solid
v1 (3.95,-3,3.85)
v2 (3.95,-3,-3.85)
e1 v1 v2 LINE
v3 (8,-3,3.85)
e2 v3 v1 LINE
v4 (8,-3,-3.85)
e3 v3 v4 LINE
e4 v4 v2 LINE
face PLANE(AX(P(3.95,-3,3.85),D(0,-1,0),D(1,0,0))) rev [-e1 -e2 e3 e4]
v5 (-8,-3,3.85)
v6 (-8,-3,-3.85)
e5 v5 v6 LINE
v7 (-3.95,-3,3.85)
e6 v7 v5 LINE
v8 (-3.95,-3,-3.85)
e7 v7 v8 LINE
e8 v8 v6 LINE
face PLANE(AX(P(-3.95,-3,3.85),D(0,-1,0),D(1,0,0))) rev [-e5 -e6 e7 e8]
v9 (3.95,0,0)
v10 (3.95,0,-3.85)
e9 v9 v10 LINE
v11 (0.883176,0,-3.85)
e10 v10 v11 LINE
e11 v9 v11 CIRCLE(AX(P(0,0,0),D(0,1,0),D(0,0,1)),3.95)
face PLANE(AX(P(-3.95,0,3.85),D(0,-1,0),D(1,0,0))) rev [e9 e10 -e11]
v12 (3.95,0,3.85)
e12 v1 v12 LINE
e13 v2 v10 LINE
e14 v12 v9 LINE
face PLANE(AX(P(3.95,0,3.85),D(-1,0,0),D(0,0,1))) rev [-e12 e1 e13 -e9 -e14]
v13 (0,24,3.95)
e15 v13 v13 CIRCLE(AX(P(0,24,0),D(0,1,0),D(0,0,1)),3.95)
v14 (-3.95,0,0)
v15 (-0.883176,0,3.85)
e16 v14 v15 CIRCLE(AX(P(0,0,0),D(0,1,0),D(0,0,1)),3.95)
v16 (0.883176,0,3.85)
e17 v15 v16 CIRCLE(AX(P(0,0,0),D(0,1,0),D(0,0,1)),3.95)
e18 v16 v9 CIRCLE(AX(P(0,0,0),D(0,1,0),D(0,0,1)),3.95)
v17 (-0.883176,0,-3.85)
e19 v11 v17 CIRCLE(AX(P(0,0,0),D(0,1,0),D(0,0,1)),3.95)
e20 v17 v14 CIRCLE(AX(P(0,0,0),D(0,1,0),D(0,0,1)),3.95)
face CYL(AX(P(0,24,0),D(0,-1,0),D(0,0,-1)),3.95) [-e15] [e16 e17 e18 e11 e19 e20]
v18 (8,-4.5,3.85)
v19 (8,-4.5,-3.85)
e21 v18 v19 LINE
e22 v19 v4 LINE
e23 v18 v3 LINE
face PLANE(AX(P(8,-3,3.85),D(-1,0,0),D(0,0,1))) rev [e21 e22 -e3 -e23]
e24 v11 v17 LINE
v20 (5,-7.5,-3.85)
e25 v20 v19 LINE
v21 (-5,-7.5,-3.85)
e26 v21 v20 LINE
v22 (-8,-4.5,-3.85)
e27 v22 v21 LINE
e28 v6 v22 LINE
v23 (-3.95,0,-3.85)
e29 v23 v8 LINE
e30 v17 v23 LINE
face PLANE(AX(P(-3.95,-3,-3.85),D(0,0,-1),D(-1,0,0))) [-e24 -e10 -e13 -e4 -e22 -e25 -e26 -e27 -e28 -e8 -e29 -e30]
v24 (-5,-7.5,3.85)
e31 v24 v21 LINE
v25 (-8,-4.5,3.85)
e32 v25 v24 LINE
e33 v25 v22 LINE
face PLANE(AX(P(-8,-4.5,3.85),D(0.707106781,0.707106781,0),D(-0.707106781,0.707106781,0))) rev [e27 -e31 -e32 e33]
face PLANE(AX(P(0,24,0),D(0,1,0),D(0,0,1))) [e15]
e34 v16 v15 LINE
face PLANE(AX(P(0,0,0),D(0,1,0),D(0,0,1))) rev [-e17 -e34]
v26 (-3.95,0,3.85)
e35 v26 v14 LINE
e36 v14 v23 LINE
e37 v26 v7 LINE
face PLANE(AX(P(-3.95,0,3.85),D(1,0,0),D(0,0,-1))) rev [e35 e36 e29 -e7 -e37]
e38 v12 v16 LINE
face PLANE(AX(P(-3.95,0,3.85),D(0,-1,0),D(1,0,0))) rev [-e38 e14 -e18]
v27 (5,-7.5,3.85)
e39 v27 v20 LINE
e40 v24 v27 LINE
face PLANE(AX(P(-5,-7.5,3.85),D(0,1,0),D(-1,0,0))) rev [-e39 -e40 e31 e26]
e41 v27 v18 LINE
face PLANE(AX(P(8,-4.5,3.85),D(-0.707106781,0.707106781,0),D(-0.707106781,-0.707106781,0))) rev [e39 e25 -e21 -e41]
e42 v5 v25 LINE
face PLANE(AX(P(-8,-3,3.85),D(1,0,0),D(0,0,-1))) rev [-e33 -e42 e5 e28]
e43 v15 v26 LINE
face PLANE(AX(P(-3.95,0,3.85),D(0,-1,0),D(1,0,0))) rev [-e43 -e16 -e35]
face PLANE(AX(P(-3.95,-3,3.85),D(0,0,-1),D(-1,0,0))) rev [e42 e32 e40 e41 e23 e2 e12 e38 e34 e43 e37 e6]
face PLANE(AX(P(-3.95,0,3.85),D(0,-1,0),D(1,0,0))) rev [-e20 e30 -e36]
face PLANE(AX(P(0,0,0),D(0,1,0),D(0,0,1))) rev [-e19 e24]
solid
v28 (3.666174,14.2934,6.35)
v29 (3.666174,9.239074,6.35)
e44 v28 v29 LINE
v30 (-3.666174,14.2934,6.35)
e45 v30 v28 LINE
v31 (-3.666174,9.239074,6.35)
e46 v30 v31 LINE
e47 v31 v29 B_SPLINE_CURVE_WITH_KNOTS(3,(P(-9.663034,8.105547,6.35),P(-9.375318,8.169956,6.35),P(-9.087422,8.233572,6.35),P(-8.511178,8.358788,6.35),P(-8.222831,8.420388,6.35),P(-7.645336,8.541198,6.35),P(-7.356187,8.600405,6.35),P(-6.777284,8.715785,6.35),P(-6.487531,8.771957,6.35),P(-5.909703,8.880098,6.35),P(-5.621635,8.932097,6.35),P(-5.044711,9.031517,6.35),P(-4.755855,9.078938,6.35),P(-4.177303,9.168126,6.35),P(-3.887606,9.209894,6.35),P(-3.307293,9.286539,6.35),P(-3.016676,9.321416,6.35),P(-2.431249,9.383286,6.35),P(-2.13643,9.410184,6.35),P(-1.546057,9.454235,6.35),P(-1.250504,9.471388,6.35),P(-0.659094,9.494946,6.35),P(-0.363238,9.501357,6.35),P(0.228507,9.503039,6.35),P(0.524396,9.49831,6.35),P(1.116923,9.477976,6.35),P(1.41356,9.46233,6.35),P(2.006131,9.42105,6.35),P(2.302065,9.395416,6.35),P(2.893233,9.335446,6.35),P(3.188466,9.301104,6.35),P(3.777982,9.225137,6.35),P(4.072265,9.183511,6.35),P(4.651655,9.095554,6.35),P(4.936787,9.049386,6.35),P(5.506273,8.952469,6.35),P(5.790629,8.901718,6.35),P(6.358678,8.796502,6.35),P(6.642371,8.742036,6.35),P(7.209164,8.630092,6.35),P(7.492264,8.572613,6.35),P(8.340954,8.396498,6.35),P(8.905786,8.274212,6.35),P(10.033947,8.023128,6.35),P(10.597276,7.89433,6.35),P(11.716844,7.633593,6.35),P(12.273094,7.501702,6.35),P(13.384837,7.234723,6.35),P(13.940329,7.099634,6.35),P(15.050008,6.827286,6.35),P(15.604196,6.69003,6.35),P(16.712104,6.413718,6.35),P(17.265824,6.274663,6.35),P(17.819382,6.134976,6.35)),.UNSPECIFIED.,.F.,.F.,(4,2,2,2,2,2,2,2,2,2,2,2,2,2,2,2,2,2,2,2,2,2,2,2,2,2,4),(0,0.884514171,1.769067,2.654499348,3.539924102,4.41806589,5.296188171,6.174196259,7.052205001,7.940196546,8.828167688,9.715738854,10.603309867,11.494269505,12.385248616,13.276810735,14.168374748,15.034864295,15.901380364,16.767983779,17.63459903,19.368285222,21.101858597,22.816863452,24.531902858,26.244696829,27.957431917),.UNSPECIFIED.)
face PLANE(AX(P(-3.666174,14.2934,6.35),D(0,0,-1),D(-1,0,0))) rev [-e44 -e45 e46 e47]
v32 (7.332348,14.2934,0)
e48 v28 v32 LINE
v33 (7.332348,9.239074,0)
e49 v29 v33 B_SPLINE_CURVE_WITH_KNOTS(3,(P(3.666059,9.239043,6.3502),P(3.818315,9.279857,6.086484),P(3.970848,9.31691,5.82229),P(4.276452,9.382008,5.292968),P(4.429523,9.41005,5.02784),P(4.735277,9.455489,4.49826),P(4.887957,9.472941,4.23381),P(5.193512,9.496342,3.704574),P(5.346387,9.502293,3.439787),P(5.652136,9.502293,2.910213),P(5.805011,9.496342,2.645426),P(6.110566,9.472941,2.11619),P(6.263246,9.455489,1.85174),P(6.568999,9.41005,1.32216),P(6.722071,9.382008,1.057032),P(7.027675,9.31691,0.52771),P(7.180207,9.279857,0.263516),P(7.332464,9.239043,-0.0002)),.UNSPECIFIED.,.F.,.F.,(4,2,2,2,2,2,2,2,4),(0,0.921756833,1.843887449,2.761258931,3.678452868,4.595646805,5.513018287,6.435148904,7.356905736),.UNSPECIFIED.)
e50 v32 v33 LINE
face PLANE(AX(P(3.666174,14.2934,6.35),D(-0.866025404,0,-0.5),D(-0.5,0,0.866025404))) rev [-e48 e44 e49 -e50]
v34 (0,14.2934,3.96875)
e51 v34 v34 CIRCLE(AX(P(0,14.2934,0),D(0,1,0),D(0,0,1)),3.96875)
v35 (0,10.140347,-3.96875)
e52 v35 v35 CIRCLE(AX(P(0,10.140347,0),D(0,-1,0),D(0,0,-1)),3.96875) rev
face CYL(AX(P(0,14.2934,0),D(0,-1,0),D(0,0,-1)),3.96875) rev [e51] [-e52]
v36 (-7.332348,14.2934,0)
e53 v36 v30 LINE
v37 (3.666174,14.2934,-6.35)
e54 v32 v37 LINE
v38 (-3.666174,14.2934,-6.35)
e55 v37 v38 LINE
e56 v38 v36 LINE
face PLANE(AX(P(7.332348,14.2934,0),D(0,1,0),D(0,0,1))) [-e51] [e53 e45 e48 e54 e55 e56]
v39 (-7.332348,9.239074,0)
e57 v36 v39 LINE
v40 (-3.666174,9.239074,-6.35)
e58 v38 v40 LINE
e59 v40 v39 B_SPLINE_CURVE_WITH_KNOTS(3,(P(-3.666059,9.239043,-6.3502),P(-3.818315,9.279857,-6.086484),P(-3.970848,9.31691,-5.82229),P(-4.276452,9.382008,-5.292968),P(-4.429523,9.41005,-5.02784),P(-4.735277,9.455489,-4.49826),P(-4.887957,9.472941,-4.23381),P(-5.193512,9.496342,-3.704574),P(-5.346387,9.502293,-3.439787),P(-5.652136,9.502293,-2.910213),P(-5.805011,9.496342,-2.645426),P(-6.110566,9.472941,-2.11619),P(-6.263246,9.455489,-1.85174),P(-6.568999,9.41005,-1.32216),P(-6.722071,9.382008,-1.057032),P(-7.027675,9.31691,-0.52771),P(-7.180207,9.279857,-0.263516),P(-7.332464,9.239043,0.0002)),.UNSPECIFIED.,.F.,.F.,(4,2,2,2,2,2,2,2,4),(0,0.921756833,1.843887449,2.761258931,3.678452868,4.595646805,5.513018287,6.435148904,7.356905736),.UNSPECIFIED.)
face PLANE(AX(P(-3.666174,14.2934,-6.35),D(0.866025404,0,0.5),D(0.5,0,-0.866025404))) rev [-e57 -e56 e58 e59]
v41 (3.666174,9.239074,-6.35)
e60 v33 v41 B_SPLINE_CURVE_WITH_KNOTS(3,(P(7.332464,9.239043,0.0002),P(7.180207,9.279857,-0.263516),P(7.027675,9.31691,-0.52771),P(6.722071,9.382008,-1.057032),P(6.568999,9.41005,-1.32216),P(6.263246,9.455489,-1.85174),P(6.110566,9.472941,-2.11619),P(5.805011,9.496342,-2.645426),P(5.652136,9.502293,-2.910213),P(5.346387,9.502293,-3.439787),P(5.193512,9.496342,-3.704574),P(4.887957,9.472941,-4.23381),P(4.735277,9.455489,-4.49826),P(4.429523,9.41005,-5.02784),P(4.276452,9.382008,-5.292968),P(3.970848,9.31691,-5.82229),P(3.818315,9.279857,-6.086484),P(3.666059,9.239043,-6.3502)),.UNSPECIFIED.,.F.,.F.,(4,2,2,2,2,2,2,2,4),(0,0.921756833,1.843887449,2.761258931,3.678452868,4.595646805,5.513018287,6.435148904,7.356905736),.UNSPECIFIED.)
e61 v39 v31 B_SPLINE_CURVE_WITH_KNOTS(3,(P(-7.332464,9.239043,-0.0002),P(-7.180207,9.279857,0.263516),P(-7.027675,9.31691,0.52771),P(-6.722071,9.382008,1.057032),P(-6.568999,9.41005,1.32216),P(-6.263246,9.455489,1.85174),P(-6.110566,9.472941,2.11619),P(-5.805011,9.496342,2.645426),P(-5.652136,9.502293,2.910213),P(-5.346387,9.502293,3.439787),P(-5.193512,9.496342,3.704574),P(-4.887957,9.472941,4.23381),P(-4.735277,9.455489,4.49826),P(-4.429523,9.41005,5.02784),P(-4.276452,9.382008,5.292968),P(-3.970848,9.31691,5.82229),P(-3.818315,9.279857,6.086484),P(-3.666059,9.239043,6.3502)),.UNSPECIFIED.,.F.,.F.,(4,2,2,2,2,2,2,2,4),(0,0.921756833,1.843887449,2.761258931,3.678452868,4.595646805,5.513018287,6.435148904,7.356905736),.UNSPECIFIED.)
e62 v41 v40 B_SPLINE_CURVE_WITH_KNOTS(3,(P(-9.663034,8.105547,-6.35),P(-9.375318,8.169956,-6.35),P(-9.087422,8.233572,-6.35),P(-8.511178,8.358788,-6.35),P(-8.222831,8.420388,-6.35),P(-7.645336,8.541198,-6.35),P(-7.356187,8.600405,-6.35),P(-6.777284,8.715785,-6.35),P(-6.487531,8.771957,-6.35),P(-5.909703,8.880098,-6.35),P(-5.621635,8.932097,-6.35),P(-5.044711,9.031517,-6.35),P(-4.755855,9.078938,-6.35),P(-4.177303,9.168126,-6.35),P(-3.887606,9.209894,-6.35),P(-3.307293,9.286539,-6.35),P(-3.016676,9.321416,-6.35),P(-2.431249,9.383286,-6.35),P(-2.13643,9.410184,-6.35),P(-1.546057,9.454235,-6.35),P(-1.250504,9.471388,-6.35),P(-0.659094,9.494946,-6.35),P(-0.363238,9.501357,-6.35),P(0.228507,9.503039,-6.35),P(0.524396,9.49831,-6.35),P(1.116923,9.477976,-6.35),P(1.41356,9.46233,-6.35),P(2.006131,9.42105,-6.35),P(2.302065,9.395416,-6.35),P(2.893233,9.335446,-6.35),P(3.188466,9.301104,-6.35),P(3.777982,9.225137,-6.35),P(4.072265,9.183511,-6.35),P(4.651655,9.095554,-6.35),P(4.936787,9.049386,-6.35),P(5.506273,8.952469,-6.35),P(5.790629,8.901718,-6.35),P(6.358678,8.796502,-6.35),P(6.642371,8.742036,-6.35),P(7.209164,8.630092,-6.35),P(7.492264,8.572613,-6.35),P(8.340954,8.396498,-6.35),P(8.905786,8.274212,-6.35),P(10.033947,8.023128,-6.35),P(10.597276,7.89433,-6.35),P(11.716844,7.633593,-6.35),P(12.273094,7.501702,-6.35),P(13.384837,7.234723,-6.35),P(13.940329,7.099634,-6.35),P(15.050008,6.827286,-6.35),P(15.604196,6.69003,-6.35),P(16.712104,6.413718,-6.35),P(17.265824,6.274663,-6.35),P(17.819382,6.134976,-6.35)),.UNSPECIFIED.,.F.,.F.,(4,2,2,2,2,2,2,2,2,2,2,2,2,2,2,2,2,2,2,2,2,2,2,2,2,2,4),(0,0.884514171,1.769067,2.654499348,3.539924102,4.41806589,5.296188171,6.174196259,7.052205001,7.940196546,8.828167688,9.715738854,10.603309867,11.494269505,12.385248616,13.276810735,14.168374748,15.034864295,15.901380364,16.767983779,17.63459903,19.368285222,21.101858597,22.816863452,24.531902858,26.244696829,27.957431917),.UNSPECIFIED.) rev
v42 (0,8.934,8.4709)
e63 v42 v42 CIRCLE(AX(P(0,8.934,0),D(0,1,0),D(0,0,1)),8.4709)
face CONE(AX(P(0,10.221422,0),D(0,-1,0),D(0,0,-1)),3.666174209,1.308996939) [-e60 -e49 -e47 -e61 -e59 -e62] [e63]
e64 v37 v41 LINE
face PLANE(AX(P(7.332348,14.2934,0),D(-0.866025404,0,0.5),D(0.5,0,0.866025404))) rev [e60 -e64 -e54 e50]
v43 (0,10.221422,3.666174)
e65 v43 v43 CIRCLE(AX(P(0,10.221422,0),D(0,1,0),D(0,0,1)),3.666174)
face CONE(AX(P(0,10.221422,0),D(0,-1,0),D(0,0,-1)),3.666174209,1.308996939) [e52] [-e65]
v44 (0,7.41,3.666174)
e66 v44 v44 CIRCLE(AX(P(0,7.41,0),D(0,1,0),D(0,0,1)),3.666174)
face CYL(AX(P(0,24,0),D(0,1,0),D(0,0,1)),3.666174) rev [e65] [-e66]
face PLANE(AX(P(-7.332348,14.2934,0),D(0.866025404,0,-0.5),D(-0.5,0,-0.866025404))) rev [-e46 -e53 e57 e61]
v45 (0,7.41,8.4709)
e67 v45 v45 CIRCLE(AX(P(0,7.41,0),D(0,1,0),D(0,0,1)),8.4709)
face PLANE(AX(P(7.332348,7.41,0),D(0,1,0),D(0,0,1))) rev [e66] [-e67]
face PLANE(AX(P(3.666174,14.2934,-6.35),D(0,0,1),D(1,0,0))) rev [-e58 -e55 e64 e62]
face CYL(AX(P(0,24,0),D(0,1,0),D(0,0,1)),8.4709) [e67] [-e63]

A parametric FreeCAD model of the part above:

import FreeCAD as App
import Part
import Sketcher
from FreeCAD import Vector
Q = App.Units.Quantity


def add_polygon(sketch, points):
    """Adds a closed chain of lines whose ends are joined by coincident constraints."""
    first, n = sketch.GeometryCount, len(points)
    for a, b in zip(points, points[1:] + points[:1]):
        sketch.addGeometry(Part.LineSegment(App.Vector(*a, 0), App.Vector(*b, 0)), False)
    for i in range(n):
        sketch.addConstraint(Sketcher.Constraint("Coincident", first + i, 2, first + (i + 1) % n, 1))

doc = App.newDocument("Part")
body = doc.addObject("PartDesign::Body", "Body")

# Sketch on XZ plane
sketch1 = doc.addObject("Sketcher::SketchObject", "Sketch")
body.addObject(sketch1)
sketch1.AttachmentSupport = (doc.XZ_Plane, [""])
sketch1.MapMode = "FlatFace"
sketch1.addGeometry(Part.Circle(Vector(0, 0, 0), Vector(0, 0, 1), 3.95), False)
sketch1.addConstraint([
    Sketcher.Constraint("Coincident", 0, 3, -1, 1),
    Sketcher.Constraint("Diameter", 0, 7.9),
])
pad1 = doc.addObject("PartDesign::Pad", "Pad")
body.addObject(pad1)
pad1.Profile = sketch1
pad1.Length = 24
pad1.Reversed = True

# Sketch on XY plane
sketch2 = doc.addObject("Sketcher::SketchObject", "Sketch001")
body.addObject(sketch2)
sketch2.AttachmentSupport = (doc.XY_Plane, [""])
sketch2.MapMode = "FlatFace"
add_polygon(sketch2, [(3.95, 0), (-3.95, 0), (-3.95, -3), (-8, -3), (-8, -4.5), (-5, -7.5), (5, -7.5), (8, -4.5), (8, -3), (3.95, -3)])  # lines 0-9
sketch2.addConstraint([
    Sketcher.Constraint("Horizontal", 0),
    Sketcher.Constraint("Vertical", 1),
    Sketcher.Constraint("Horizontal", 2),
    Sketcher.Constraint("Vertical", 3),
    Sketcher.Constraint("Horizontal", 5),
    Sketcher.Constraint("Vertical", 7),
    Sketcher.Constraint("Horizontal", 8),
    Sketcher.Constraint("Vertical", 9),
    Sketcher.Constraint("Symmetric", 0, 2, 9, 2, -1, 1),
    Sketcher.Constraint("Symmetric", 3, 2, 6, 2, -2),
    Sketcher.Constraint("Perpendicular", 4, 6),
    Sketcher.Constraint("Horizontal", 2, 2, 7, 2),
    Sketcher.Constraint("Equal", 4, 6),
    Sketcher.Constraint("DistanceX", 5, 1, 5, 2, 10.0),
    Sketcher.Constraint("DistanceY", 1, 2, 1, 1, 3.0),
    Sketcher.Constraint("DistanceX", 0, 2, 0, 1, 7.9),
    Sketcher.Constraint("DistanceY", 3, 2, 3, 1, 1.5),
    Sketcher.Constraint("DistanceX", 2, 2, -1, 1, 8.0),
])
pad2 = doc.addObject("PartDesign::Pad", "Pad001")
body.addObject(pad2)
pad2.Profile = sketch2
pad2.Length = 7.7
pad2.Midplane = True
body2 = doc.addObject("PartDesign::Body", "Body001")

# Sketch on XZ plane
sketch3 = doc.addObject("Sketcher::SketchObject", "Sketch002")
body2.addObject(sketch3)
sketch3.AttachmentSupport = (doc.getObject("XZ_Plane001"), [""])
sketch3.MapMode = "FlatFace"
sketch3.AttachmentOffset = App.Placement(Vector(0, 0, -7.41), App.Rotation())
add_polygon(sketch3, [(7.332348, 0), (3.666174, -6.35), (-3.666174, -6.35), (-7.332348, 0), (-3.666174, 6.35), (3.666174, 6.35)])  # lines 0-5
sketch3.addGeometry(Part.Circle(Vector(0, 0, 0), Vector(0, 0, 1), 3.96875), False)  # 6
sketch3.addConstraint([
    Sketcher.Constraint("Horizontal", 1),
    Sketcher.Constraint("Horizontal", 4),
    Sketcher.Constraint("Coincident", 6, 3, -1, 1),
    Sketcher.Constraint("Symmetric", 0, 2, 3, 2, -1, 1),
    Sketcher.Constraint("Symmetric", 2, 2, 5, 2, -1, 1),
    Sketcher.Constraint("PointOnObject", 2, 2, -1),
    Sketcher.Constraint("Parallel", 2, 5),
    Sketcher.Constraint("Vertical", 1, 2, 3, 2),
    Sketcher.Constraint("Angle", 0, Q("-120 deg")),
    Sketcher.Constraint("Diameter", 6, 7.9375),
    Sketcher.Constraint("DistanceY", 1, 2, 3, 2, 12.7),
    Sketcher.Constraint("DistanceX", 1, 2, 1, 1, 7.332348),
])
pad3 = doc.addObject("PartDesign::Pad", "Pad002")
body2.addObject(pad3)
pad3.Profile = sketch3
pad3.Length = 6.8834
pad3.Reversed = True

# Sketch on XY plane
sketch4 = doc.addObject("Sketcher::SketchObject", "Sketch003")
body2.addObject(sketch4)
sketch4.AttachmentSupport = (doc.getObject("XY_Plane001"), [""])
sketch4.MapMode = "FlatFace"
add_polygon(sketch4, [(-8.4709, 7.41), (-3.666174, 7.41), (-3.666174, 10.221422), (-8.4709, 8.934)])  # lines 0-3
sketch4.addConstraint([
    Sketcher.Constraint("Horizontal", 0),
    Sketcher.Constraint("Vertical", 1),
    Sketcher.Constraint("Vertical", 3),
    Sketcher.Constraint("Angle", 2, Q("-165 deg")),
    Sketcher.Constraint("DistanceY", 3, 2, 3, 1, 1.524),
    Sketcher.Constraint("DistanceY", -1, 1, 0, 2, 7.41),
    Sketcher.Constraint("DistanceX", 2, 2, -1, 1, 8.4709),
    Sketcher.Constraint("Distance", 2, 4.974218),
])
revolution = doc.addObject("PartDesign::Revolution", "Revolution")
body2.addObject(revolution)
revolution.Profile = sketch4
revolution.ReferenceAxis = (sketch4, ["V_Axis"])
revolution.Angle = 360

doc.recompute()
